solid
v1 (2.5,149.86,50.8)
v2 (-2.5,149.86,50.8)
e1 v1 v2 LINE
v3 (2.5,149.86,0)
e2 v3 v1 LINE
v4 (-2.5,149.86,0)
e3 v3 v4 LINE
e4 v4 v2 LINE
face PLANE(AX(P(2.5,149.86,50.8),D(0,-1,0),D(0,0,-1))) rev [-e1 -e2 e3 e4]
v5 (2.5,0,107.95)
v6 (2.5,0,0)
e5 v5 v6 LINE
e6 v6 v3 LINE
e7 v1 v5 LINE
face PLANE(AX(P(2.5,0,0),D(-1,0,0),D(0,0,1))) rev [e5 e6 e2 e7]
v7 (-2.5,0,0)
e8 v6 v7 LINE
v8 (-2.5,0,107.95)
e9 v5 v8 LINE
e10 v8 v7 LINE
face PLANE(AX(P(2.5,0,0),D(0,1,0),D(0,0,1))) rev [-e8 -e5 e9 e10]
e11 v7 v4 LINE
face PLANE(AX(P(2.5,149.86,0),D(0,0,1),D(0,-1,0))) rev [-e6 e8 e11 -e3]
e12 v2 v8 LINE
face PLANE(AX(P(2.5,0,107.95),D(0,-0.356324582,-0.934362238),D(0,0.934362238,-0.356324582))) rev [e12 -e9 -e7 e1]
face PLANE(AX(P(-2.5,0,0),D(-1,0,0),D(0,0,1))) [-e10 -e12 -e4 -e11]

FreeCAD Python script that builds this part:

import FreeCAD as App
import Part
import Sketcher
from FreeCAD import Vector
Q = App.Units.Quantity


def add_polygon(sketch, points):
    """Adds a closed chain of lines whose ends are joined by coincident constraints."""
    first, n = sketch.GeometryCount, len(points)
    for a, b in zip(points, points[1:] + points[:1]):
        sketch.addGeometry(Part.LineSegment(App.Vector(*a, 0), App.Vector(*b, 0)), False)
    for i in range(n):
        sketch.addConstraint(Sketcher.Constraint("Coincident", first + i, 2, first + (i + 1) % n, 1))

doc = App.newDocument("Part")
params = doc.addObject("Spreadsheet::Sheet", "Params")
for row, (alias, value) in enumerate([
    ("sketch1_height", "2 in"),
    ("sketch1_width", "5.9 in"),
    ("sketch1_height2", "4.25 in"),
    ("pad1_length", "5 mm"),
], start=1):
    params.set(f"A{row}", alias)
    params.set(f"B{row}", "=" + value)
    params.setAlias(f"B{row}", alias)

body = doc.addObject("PartDesign::Body", "Body")

sketch1 = body.newObject("Sketcher::SketchObject", "Sketch")
sketch1.AttachmentSupport = (doc.getObject("YZ_Plane"), [""])
sketch1.MapMode = "FlatFace"
add_polygon(sketch1, [(0, 0), (150, 0), (150, 51), (0, 108)])
sketch1.addConstraint([
    Sketcher.Constraint("Horizontal", 0),
    Sketcher.Constraint("Vertical", 1),
    Sketcher.Constraint("Vertical", 3),
    Sketcher.Constraint("Coincident", 3, 2, -1, 1),
    Sketcher.Constraint("DistanceY", 1, 1, 1, 2, Q("2 in")),
    Sketcher.Constraint("DistanceX", 0, 1, 0, 2, Q("5.9 in")),
    Sketcher.Constraint("DistanceY", 3, 2, 3, 1, Q("4.25 in")),
])
sketch1.setExpression("Constraints[8]", "Params.sketch1_height")
sketch1.setExpression("Constraints[9]", "Params.sketch1_width")
sketch1.setExpression("Constraints[10]", "Params.sketch1_height2")
pad1 = body.newObject("PartDesign::Pad", "Pad")
pad1.Profile = sketch1
pad1.setExpression("Length", "Params.pad1_length")
pad1.Midplane = True

doc.recompute()
